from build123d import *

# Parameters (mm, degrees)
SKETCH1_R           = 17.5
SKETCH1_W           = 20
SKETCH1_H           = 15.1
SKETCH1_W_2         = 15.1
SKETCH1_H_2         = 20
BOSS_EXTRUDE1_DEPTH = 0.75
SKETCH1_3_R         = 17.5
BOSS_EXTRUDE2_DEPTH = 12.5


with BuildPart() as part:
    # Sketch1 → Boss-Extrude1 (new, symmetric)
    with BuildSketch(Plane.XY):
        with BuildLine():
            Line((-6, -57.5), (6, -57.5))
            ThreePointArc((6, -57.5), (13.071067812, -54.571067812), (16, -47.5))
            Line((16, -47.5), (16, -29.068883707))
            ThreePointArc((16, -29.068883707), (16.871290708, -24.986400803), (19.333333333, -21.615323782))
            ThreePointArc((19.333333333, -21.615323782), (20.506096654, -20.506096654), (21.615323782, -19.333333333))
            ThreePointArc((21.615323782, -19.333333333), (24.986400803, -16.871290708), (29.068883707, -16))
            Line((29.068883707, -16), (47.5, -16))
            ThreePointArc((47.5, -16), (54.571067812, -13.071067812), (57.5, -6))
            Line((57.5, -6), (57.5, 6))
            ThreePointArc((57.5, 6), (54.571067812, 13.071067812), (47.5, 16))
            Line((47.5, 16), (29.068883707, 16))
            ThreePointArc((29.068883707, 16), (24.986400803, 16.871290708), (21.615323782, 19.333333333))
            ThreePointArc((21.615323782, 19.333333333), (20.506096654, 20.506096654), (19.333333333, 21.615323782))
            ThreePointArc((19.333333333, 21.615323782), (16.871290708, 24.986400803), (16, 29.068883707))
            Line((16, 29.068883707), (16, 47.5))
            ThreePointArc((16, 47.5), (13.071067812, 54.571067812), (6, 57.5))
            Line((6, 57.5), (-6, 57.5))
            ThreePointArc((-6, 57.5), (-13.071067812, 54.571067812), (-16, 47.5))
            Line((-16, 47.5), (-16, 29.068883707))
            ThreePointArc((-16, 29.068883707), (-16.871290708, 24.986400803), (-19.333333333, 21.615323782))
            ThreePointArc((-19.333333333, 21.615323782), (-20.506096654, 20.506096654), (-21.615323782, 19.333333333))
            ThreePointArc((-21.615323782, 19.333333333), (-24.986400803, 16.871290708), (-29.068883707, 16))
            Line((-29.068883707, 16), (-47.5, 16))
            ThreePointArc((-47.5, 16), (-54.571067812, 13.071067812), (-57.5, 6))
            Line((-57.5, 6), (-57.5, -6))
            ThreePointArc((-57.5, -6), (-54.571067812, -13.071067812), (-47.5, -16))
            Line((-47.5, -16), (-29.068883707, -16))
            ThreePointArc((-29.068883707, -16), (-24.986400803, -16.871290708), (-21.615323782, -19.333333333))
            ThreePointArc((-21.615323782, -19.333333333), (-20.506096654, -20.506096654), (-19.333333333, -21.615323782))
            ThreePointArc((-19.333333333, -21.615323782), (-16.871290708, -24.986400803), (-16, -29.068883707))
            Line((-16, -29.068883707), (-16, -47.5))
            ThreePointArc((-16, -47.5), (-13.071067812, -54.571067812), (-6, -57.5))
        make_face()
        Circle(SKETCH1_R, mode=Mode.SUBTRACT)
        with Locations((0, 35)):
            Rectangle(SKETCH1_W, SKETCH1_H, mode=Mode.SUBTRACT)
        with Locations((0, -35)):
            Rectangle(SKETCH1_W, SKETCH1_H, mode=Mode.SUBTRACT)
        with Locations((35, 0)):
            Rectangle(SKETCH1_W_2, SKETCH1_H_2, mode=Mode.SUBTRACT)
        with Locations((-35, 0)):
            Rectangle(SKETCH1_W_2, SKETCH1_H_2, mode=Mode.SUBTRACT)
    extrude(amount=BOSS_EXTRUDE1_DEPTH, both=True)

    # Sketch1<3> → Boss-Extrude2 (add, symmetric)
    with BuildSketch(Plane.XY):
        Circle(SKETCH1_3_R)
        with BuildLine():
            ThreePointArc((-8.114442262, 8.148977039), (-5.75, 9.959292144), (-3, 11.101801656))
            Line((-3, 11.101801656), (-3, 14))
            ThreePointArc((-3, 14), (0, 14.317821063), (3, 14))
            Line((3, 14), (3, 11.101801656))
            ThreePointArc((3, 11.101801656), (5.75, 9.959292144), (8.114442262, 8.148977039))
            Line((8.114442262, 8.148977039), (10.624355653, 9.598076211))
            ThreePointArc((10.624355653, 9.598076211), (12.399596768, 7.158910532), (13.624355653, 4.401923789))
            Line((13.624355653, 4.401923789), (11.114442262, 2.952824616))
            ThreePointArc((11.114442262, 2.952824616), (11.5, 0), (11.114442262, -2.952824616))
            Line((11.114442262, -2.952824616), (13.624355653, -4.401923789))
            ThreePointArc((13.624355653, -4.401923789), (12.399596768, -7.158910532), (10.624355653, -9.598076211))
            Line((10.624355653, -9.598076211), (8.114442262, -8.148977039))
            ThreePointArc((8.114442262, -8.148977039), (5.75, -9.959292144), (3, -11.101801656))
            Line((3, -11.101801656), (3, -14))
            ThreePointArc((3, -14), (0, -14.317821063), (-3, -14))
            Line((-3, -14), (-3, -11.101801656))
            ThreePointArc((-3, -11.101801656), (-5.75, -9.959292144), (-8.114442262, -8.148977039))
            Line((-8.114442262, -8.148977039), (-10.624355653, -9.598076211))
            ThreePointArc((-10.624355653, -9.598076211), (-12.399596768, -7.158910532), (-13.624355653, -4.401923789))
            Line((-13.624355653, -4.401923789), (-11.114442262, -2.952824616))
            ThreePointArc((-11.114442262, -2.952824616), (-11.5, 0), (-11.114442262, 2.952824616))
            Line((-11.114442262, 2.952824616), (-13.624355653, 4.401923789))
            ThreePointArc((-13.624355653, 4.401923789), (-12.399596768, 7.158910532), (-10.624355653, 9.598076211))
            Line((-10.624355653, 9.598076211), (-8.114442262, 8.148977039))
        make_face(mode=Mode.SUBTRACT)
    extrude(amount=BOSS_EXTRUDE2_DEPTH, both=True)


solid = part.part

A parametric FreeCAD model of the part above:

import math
import FreeCAD as App
import Part
import Sketcher

V = App.Vector
Q = App.Units.Quantity

doc = App.newDocument("Part")
body = doc.addObject("PartDesign::Body", "Body")

# Sketch on XY plane
sketch1 = body.newObject("Sketcher::SketchObject", "Sketch")
sketch1.AttachmentSupport = (doc.getObject("XY_Plane"), [""])
sketch1.MapMode = "FlatFace"
sketch1.addGeometry(Part.LineSegment(V(-6, -57.5, 0), V(6, -57.5, 0)), False)
sketch1.addGeometry(Part.ArcOfCircle(Part.Circle(V(6, -47.5, 0), V(0, 0, 1), 10), math.radians(-90), math.radians(0)), False)
sketch1.addGeometry(Part.LineSegment(V(16, -47.5, 0), V(16, -29.068884, 0)), False)
sketch1.addGeometry(Part.ArcOfCircle(Part.Circle(V(26, -29.068884, 0), V(0, 0, 1), 10), math.radians(131.810315), math.radians(180)), False)
sketch1.addGeometry(Part.ArcOfCircle(Part.Circle(V(0, 0, 0), V(0, 0, 1), 29), math.radians(-48.189685), math.radians(-41.810315)), False)
sketch1.addGeometry(Part.ArcOfCircle(Part.Circle(V(29.068884, -26, 0), V(0, 0, 1), 10), math.radians(90), math.radians(138.189685)), False)
sketch1.addGeometry(Part.LineSegment(V(29.068884, -16, 0), V(47.5, -16, 0)), False)
sketch1.addGeometry(Part.ArcOfCircle(Part.Circle(V(47.5, -6, 0), V(0, 0, 1), 10), math.radians(-90), math.radians(0)), False)
sketch1.addGeometry(Part.LineSegment(V(57.5, -6, 0), V(57.5, 6, 0)), False)
sketch1.addGeometry(Part.ArcOfCircle(Part.Circle(V(47.5, 6, 0), V(0, 0, 1), 10), math.radians(0), math.radians(90)), False)
sketch1.addGeometry(Part.LineSegment(V(47.5, 16, 0), V(29.068884, 16, 0)), False)
sketch1.addGeometry(Part.ArcOfCircle(Part.Circle(V(29.068884, 26, 0), V(0, 0, 1), 10), math.radians(-138.189685), math.radians(-90)), False)
sketch1.addGeometry(Part.ArcOfCircle(Part.Circle(V(0, 0, 0), V(0, 0, 1), 29), math.radians(41.810315), math.radians(48.189685)), False)
sketch1.addGeometry(Part.ArcOfCircle(Part.Circle(V(26, 29.068884, 0), V(0, 0, 1), 10), math.radians(180), math.radians(228.189685)), False)
sketch1.addGeometry(Part.LineSegment(V(16, 29.068884, 0), V(16, 47.5, 0)), False)
sketch1.addGeometry(Part.ArcOfCircle(Part.Circle(V(6, 47.5, 0), V(0, 0, 1), 10), math.radians(0), math.radians(90)), False)
sketch1.addGeometry(Part.LineSegment(V(6, 57.5, 0), V(-6, 57.5, 0)), False)
sketch1.addGeometry(Part.ArcOfCircle(Part.Circle(V(-6, 47.5, 0), V(0, 0, 1), 10), math.radians(90), math.radians(180)), False)
sketch1.addGeometry(Part.LineSegment(V(-16, 47.5, 0), V(-16, 29.068884, 0)), False)
sketch1.addGeometry(Part.ArcOfCircle(Part.Circle(V(-26, 29.068884, 0), V(0, 0, 1), 10), math.radians(-48.189685), math.radians(0)), False)
sketch1.addGeometry(Part.ArcOfCircle(Part.Circle(V(0, 0, 0), V(0, 0, 1), 29), math.radians(131.810315), math.radians(138.189685)), False)
sketch1.addGeometry(Part.ArcOfCircle(Part.Circle(V(-29.068884, 26, 0), V(0, 0, 1), 10), math.radians(-90), math.radians(-41.810315)), False)
sketch1.addGeometry(Part.LineSegment(V(-29.068884, 16, 0), V(-47.5, 16, 0)), False)
sketch1.addGeometry(Part.ArcOfCircle(Part.Circle(V(-47.5, 6, 0), V(0, 0, 1), 10), math.radians(90), math.radians(180)), False)
sketch1.addGeometry(Part.LineSegment(V(-57.5, 6, 0), V(-57.5, -6, 0)), False)
sketch1.addGeometry(Part.ArcOfCircle(Part.Circle(V(-47.5, -6, 0), V(0, 0, 1), 10), math.radians(180), math.radians(270)), False)
sketch1.addGeometry(Part.LineSegment(V(-47.5, -16, 0), V(-29.068884, -16, 0)), False)
sketch1.addGeometry(Part.ArcOfCircle(Part.Circle(V(-29.068884, -26, 0), V(0, 0, 1), 10), math.radians(41.810315), math.radians(90)), False)
sketch1.addGeometry(Part.ArcOfCircle(Part.Circle(V(0, 0, 0), V(0, 0, 1), 29), math.radians(-138.189685), math.radians(-131.810315)), False)
sketch1.addGeometry(Part.ArcOfCircle(Part.Circle(V(-26, -29.068884, 0), V(0, 0, 1), 10), math.radians(0), math.radians(48.189685)), False)
sketch1.addGeometry(Part.LineSegment(V(-16, -29.068884, 0), V(-16, -47.5, 0)), False)
sketch1.addGeometry(Part.ArcOfCircle(Part.Circle(V(-6, -47.5, 0), V(0, 0, 1), 10), math.radians(180), math.radians(270)), False)
sketch1.addGeometry(Part.LineSegment(V(10, -42.55, 0), V(-10, -42.55, 0)), False)
sketch1.addGeometry(Part.LineSegment(V(-10, -42.55, 0), V(-10, -27.45, 0)), False)
sketch1.addGeometry(Part.LineSegment(V(-10, -27.45, 0), V(10, -27.45, 0)), False)
sketch1.addGeometry(Part.LineSegment(V(10, -27.45, 0), V(10, -42.55, 0)), False)
sketch1.addGeometry(Part.LineSegment(V(-27.45, -10, 0), V(-42.55, -10, 0)), False)
sketch1.addGeometry(Part.LineSegment(V(-42.55, -10, 0), V(-42.55, 10, 0)), False)
sketch1.addGeometry(Part.LineSegment(V(-42.55, 10, 0), V(-27.45, 10, 0)), False)
sketch1.addGeometry(Part.LineSegment(V(-27.45, 10, 0), V(-27.45, -10, 0)), False)
sketch1.addGeometry(Part.Circle(V(0, 0, 0), V(0, 0, 1), 17.5), False)
sketch1.addGeometry(Part.LineSegment(V(42.55, -10, 0), V(27.45, -10, 0)), False)
sketch1.addGeometry(Part.LineSegment(V(27.45, -10, 0), V(27.45, 10, 0)), False)
sketch1.addGeometry(Part.LineSegment(V(27.45, 10, 0), V(42.55, 10, 0)), False)
sketch1.addGeometry(Part.LineSegment(V(42.55, 10, 0), V(42.55, -10, 0)), False)
sketch1.addGeometry(Part.LineSegment(V(10, 27.45, 0), V(-10, 27.45, 0)), False)
sketch1.addGeometry(Part.LineSegment(V(-10, 27.45, 0), V(-10, 42.55, 0)), False)
sketch1.addGeometry(Part.LineSegment(V(-10, 42.55, 0), V(10, 42.55, 0)), False)
sketch1.addGeometry(Part.LineSegment(V(10, 42.55, 0), V(10, 27.45, 0)), False)
sketch1.addConstraint(Sketcher.Constraint("Tangent", 0, 2, 1, 1))
sketch1.addConstraint(Sketcher.Constraint("Tangent", 1, 2, 2, 1))
sketch1.addConstraint(Sketcher.Constraint("Tangent", 2, 2, 3, 2))
sketch1.addConstraint(Sketcher.Constraint("Tangent", 3, 1, 4, 1))
sketch1.addConstraint(Sketcher.Constraint("Tangent", 4, 2, 5, 2))
sketch1.addConstraint(Sketcher.Constraint("Tangent", 5, 1, 6, 1))
sketch1.addConstraint(Sketcher.Constraint("Tangent", 6, 2, 7, 1))
sketch1.addConstraint(Sketcher.Constraint("Tangent", 7, 2, 8, 1))
sketch1.addConstraint(Sketcher.Constraint("Tangent", 8, 2, 9, 1))
sketch1.addConstraint(Sketcher.Constraint("Tangent", 9, 2, 10, 1))
sketch1.addConstraint(Sketcher.Constraint("Tangent", 10, 2, 11, 2))
sketch1.addConstraint(Sketcher.Constraint("Tangent", 11, 1, 12, 1))
sketch1.addConstraint(Sketcher.Constraint("Tangent", 12, 2, 13, 2))
sketch1.addConstraint(Sketcher.Constraint("Tangent", 13, 1, 14, 1))
sketch1.addConstraint(Sketcher.Constraint("Tangent", 14, 2, 15, 1))
sketch1.addConstraint(Sketcher.Constraint("Tangent", 15, 2, 16, 1))
sketch1.addConstraint(Sketcher.Constraint("Tangent", 16, 2, 17, 1))
sketch1.addConstraint(Sketcher.Constraint("Tangent", 17, 2, 18, 1))
sketch1.addConstraint(Sketcher.Constraint("Tangent", 18, 2, 19, 2))
sketch1.addConstraint(Sketcher.Constraint("Tangent", 19, 1, 20, 1))
sketch1.addConstraint(Sketcher.Constraint("Tangent", 20, 2, 21, 2))
sketch1.addConstraint(Sketcher.Constraint("Tangent", 21, 1, 22, 1))
sketch1.addConstraint(Sketcher.Constraint("Tangent", 22, 2, 23, 1))
sketch1.addConstraint(Sketcher.Constraint("Tangent", 23, 2, 24, 1))
sketch1.addConstraint(Sketcher.Constraint("Tangent", 24, 2, 25, 1))
sketch1.addConstraint(Sketcher.Constraint("Tangent", 25, 2, 26, 1))
sketch1.addConstraint(Sketcher.Constraint("Tangent", 26, 2, 27, 2))
sketch1.addConstraint(Sketcher.Constraint("Tangent", 27, 1, 28, 1))
sketch1.addConstraint(Sketcher.Constraint("Tangent", 28, 2, 29, 2))
sketch1.addConstraint(Sketcher.Constraint("Tangent", 29, 1, 30, 1))
sketch1.addConstraint(Sketcher.Constraint("Tangent", 30, 2, 31, 1))
sketch1.addConstraint(Sketcher.Constraint("Tangent", 31, 2, 0, 1))
sketch1.addConstraint(Sketcher.Constraint("Coincident", 32, 2, 33, 1))
sketch1.addConstraint(Sketcher.Constraint("Coincident", 33, 2, 34, 1))
sketch1.addConstraint(Sketcher.Constraint("Coincident", 34, 2, 35, 1))
sketch1.addConstraint(Sketcher.Constraint("Coincident", 35, 2, 32, 1))
sketch1.addConstraint(Sketcher.Constraint("Coincident", 36, 2, 37, 1))
sketch1.addConstraint(Sketcher.Constraint("Coincident", 37, 2, 38, 1))
sketch1.addConstraint(Sketcher.Constraint("Coincident", 38, 2, 39, 1))
sketch1.addConstraint(Sketcher.Constraint("Coincident", 39, 2, 36, 1))
sketch1.addConstraint(Sketcher.Constraint("Coincident", 41, 2, 42, 1))
sketch1.addConstraint(Sketcher.Constraint("Coincident", 42, 2, 43, 1))
sketch1.addConstraint(Sketcher.Constraint("Coincident", 43, 2, 44, 1))
sketch1.addConstraint(Sketcher.Constraint("Coincident", 44, 2, 41, 1))
sketch1.addConstraint(Sketcher.Constraint("Coincident", 45, 2, 46, 1))
sketch1.addConstraint(Sketcher.Constraint("Coincident", 46, 2, 47, 1))
sketch1.addConstraint(Sketcher.Constraint("Coincident", 47, 2, 48, 1))
sketch1.addConstraint(Sketcher.Constraint("Coincident", 48, 2, 45, 1))
sketch1.addConstraint(Sketcher.Constraint("Horizontal", 0))
sketch1.addConstraint(Sketcher.Constraint("Vertical", 2))
sketch1.addConstraint(Sketcher.Constraint("Horizontal", 6))
sketch1.addConstraint(Sketcher.Constraint("Vertical", 8))
sketch1.addConstraint(Sketcher.Constraint("Horizontal", 10))
sketch1.addConstraint(Sketcher.Constraint("Vertical", 14))
sketch1.addConstraint(Sketcher.Constraint("Horizontal", 16))
sketch1.addConstraint(Sketcher.Constraint("Vertical", 18))
sketch1.addConstraint(Sketcher.Constraint("Horizontal", 22))
sketch1.addConstraint(Sketcher.Constraint("Vertical", 24))
sketch1.addConstraint(Sketcher.Constraint("Horizontal", 26))
sketch1.addConstraint(Sketcher.Constraint("Vertical", 30))
sketch1.addConstraint(Sketcher.Constraint("Horizontal", 32))
sketch1.addConstraint(Sketcher.Constraint("Vertical", 33))
sketch1.addConstraint(Sketcher.Constraint("Horizontal", 34))
sketch1.addConstraint(Sketcher.Constraint("Vertical", 35))
sketch1.addConstraint(Sketcher.Constraint("Horizontal", 36))
sketch1.addConstraint(Sketcher.Constraint("Vertical", 37))
sketch1.addConstraint(Sketcher.Constraint("Horizontal", 38))
sketch1.addConstraint(Sketcher.Constraint("Vertical", 39))
sketch1.addConstraint(Sketcher.Constraint("Horizontal", 41))
sketch1.addConstraint(Sketcher.Constraint("Vertical", 42))
sketch1.addConstraint(Sketcher.Constraint("Horizontal", 43))
sketch1.addConstraint(Sketcher.Constraint("Vertical", 44))
sketch1.addConstraint(Sketcher.Constraint("Horizontal", 45))
sketch1.addConstraint(Sketcher.Constraint("Vertical", 46))
sketch1.addConstraint(Sketcher.Constraint("Horizontal", 47))
sketch1.addConstraint(Sketcher.Constraint("Vertical", 48))
sketch1.addConstraint(Sketcher.Constraint("Coincident", 4, 3, -1, 1))
sketch1.addConstraint(Sketcher.Constraint("Coincident", 12, 3, -1, 1))
sketch1.addConstraint(Sketcher.Constraint("Coincident", 20, 3, -1, 1))
sketch1.addConstraint(Sketcher.Constraint("Coincident", 28, 3, -1, 1))
sketch1.addConstraint(Sketcher.Constraint("Coincident", 40, 3, -1, 1))
sketch1.addConstraint(Sketcher.Constraint("Equal", 1, 3))
sketch1.addConstraint(Sketcher.Constraint("Equal", 3, 5))
sketch1.addConstraint(Sketcher.Constraint("Equal", 5, 7))
sketch1.addConstraint(Sketcher.Constraint("Equal", 7, 9))
sketch1.addConstraint(Sketcher.Constraint("Equal", 9, 11))
sketch1.addConstraint(Sketcher.Constraint("Equal", 4, 12))
sketch1.addConstraint(Sketcher.Constraint("Equal", 11, 13))
sketch1.addConstraint(Sketcher.Constraint("Equal", 13, 15))
sketch1.addConstraint(Sketcher.Constraint("Equal", 15, 17))
sketch1.addConstraint(Sketcher.Constraint("Equal", 17, 19))
sketch1.addConstraint(Sketcher.Constraint("Equal", 12, 20))
sketch1.addConstraint(Sketcher.Constraint("Equal", 19, 21))
sketch1.addConstraint(Sketcher.Constraint("Equal", 21, 23))
sketch1.addConstraint(Sketcher.Constraint("Equal", 23, 25))
sketch1.addConstraint(Sketcher.Constraint("Equal", 25, 27))
sketch1.addConstraint(Sketcher.Constraint("Equal", 20, 28))
sketch1.addConstraint(Sketcher.Constraint("Equal", 27, 29))
sketch1.addConstraint(Sketcher.Constraint("Equal", 29, 31))
sketch1.addConstraint(Sketcher.Constraint("Symmetric", 1, 3, 17, 3, -1, 1))
sketch1.addConstraint(Sketcher.Constraint("Symmetric", 7, 3, 23, 3, -1, 1))
sketch1.addConstraint(Sketcher.Constraint("Symmetric", 38, 2, 41, 2, -1, 1))
sketch1.addConstraint(Sketcher.Constraint("Symmetric", 36, 2, 43, 2, -1, 1))
sketch1.addConstraint(Sketcher.Constraint("Symmetric", 34, 2, 45, 2, -1, 1))
sketch1.addConstraint(Sketcher.Constraint("Symmetric", 32, 2, 47, 2, -1, 1))
sketch1.addConstraint(Sketcher.Constraint("Horizontal", 13, 3, 19, 3))
sketch1.addConstraint(Sketcher.Constraint("Horizontal", 11, 3, 21, 3))
sketch1.addConstraint(Sketcher.Constraint("Horizontal", 7, 3, 25, 3))
sketch1.addConstraint(Sketcher.Constraint("Horizontal", 3, 3, 29, 3))
sketch1.addConstraint(Sketcher.Constraint("Horizontal", 39, 2, 41, 2))
sketch1.addConstraint(Sketcher.Constraint("Vertical", 33, 2, 45, 2))
sketch1.addConstraint(Sketcher.Constraint("Equal", 26, 2))
sketch1.addConstraint(Sketcher.Constraint("Equal", 16, 8))
sketch1.addConstraint(Sketcher.Constraint("Equal", 43, 33))
sketch1.addConstraint(Sketcher.Constraint("Equal", 47, 37))
sketch1.addConstraint(Sketcher.Constraint("Diameter", 40, 35.0))
sketch1.addConstraint(Sketcher.Constraint("Radius", 1, 10.0))
sketch1.addConstraint(Sketcher.Constraint("Radius", 4, 29.0))
sketch1.addConstraint(Sketcher.Constraint("DistanceX", 0, 1, 0, 2, 12.0))
sketch1.addConstraint(Sketcher.Constraint("DistanceX", 32, 2, 32, 1, 20.0))
sketch1.addConstraint(Sketcher.Constraint("DistanceX", 36, 2, 36, 1, 15.1))
sketch1.addConstraint(Sketcher.Constraint("DistanceY", 1, 3, -1, 1, 47.5))
sketch1.addConstraint(Sketcher.Constraint("DistanceY", 32, 2, -1, 1, 42.55))
sketch1.addConstraint(Sketcher.Constraint("DistanceX", 36, 2, -1, 1, 42.55))
pad1 = body.newObject("PartDesign::Pad", "Pad")
pad1.Profile = sketch1
pad1.Length = 1.5
pad1.Midplane = True

# Sketch on XY plane
sketch2 = body.newObject("Sketcher::SketchObject", "Sketch001")
sketch2.AttachmentSupport = (doc.getObject("XY_Plane"), [""])
sketch2.MapMode = "FlatFace"
sketch2.addGeometry(Part.Circle(V(0, 0, 0), V(0, 0, 1), 17.5), False)
sketch2.addGeometry(Part.LineSegment(V(-10.624356, 9.598076, 0), V(-8.114442, 8.148977, 0)), False)
sketch2.addGeometry(Part.ArcOfCircle(Part.Circle(V(0, 0, 0), V(0, 0, 1), 11.5), math.radians(105.121665), math.radians(134.878335)), False)
sketch2.addGeometry(Part.LineSegment(V(-3, 11.101802, 0), V(-3, 14, 0)), False)
sketch2.addGeometry(Part.ArcOfCircle(Part.Circle(V(0, 0, 0), V(0, 0, 1), 14.317821), math.radians(77.905243), math.radians(102.094757)), False)
sketch2.addGeometry(Part.LineSegment(V(3, 14, 0), V(3, 11.101802, 0)), False)
sketch2.addGeometry(Part.ArcOfCircle(Part.Circle(V(0, 0, 0), V(0, 0, 1), 11.5), math.radians(45.121665), math.radians(74.878335)), False)
sketch2.addGeometry(Part.LineSegment(V(8.114442, 8.148977, 0), V(10.624356, 9.598076, 0)), False)
sketch2.addGeometry(Part.ArcOfCircle(Part.Circle(V(0, 0, 0), V(0, 0, 1), 14.317821), math.radians(17.905243), math.radians(42.094757)), False)
sketch2.addGeometry(Part.LineSegment(V(13.624356, 4.401924, 0), V(11.114442, 2.952825, 0)), False)
sketch2.addGeometry(Part.ArcOfCircle(Part.Circle(V(0, 0, 0), V(0, 0, 1), 11.5), math.radians(-14.878335), math.radians(14.878335)), False)
sketch2.addGeometry(Part.LineSegment(V(11.114442, -2.952825, 0), V(13.624356, -4.401924, 0)), False)
sketch2.addGeometry(Part.ArcOfCircle(Part.Circle(V(0, 0, 0), V(0, 0, 1), 14.317821), math.radians(-42.094757), math.radians(-17.905243)), False)
sketch2.addGeometry(Part.LineSegment(V(10.624356, -9.598076, 0), V(8.114442, -8.148977, 0)), False)
sketch2.addGeometry(Part.ArcOfCircle(Part.Circle(V(0, 0, 0), V(0, 0, 1), 11.5), math.radians(-74.878335), math.radians(-45.121665)), False)
sketch2.addGeometry(Part.LineSegment(V(3, -11.101802, 0), V(3, -14, 0)), False)
sketch2.addGeometry(Part.ArcOfCircle(Part.Circle(V(0, 0, 0), V(0, 0, 1), 14.317821), math.radians(-102.094757), math.radians(-77.905243)), False)
sketch2.addGeometry(Part.LineSegment(V(-3, -14, 0), V(-3, -11.101802, 0)), False)
sketch2.addGeometry(Part.ArcOfCircle(Part.Circle(V(0, 0, 0), V(0, 0, 1), 11.5), math.radians(-134.878335), math.radians(-105.121665)), False)
sketch2.addGeometry(Part.LineSegment(V(-8.114442, -8.148977, 0), V(-10.624356, -9.598076, 0)), False)
sketch2.addGeometry(Part.ArcOfCircle(Part.Circle(V(0, 0, 0), V(0, 0, 1), 14.317821), math.radians(-162.094757), math.radians(-137.905243)), False)
sketch2.addGeometry(Part.LineSegment(V(-13.624356, -4.401924, 0), V(-11.114442, -2.952825, 0)), False)
sketch2.addGeometry(Part.ArcOfCircle(Part.Circle(V(0, 0, 0), V(0, 0, 1), 11.5), math.radians(165.121665), math.radians(194.878335)), False)
sketch2.addGeometry(Part.LineSegment(V(-11.114442, 2.952825, 0), V(-13.624356, 4.401924, 0)), False)
sketch2.addGeometry(Part.ArcOfCircle(Part.Circle(V(0, 0, 0), V(0, 0, 1), 14.317821), math.radians(137.905243), math.radians(162.094757)), False)
sketch2.addConstraint(Sketcher.Constraint("Coincident", 1, 2, 2, 2))
sketch2.addConstraint(Sketcher.Constraint("Coincident", 2, 1, 3, 1))
sketch2.addConstraint(Sketcher.Constraint("Coincident", 3, 2, 4, 2))
sketch2.addConstraint(Sketcher.Constraint("Coincident", 4, 1, 5, 1))
sketch2.addConstraint(Sketcher.Constraint("Coincident", 5, 2, 6, 2))
sketch2.addConstraint(Sketcher.Constraint("Coincident", 6, 1, 7, 1))
sketch2.addConstraint(Sketcher.Constraint("Coincident", 7, 2, 8, 2))
sketch2.addConstraint(Sketcher.Constraint("Coincident", 8, 1, 9, 1))
sketch2.addConstraint(Sketcher.Constraint("Coincident", 9, 2, 10, 2))
sketch2.addConstraint(Sketcher.Constraint("Coincident", 10, 1, 11, 1))
sketch2.addConstraint(Sketcher.Constraint("Coincident", 11, 2, 12, 2))
sketch2.addConstraint(Sketcher.Constraint("Coincident", 12, 1, 13, 1))
sketch2.addConstraint(Sketcher.Constraint("Coincident", 13, 2, 14, 2))
sketch2.addConstraint(Sketcher.Constraint("Coincident", 14, 1, 15, 1))
sketch2.addConstraint(Sketcher.Constraint("Coincident", 15, 2, 16, 2))
sketch2.addConstraint(Sketcher.Constraint("Coincident", 16, 1, 17, 1))
sketch2.addConstraint(Sketcher.Constraint("Coincident", 17, 2, 18, 2))
sketch2.addConstraint(Sketcher.Constraint("Coincident", 18, 1, 19, 1))
sketch2.addConstraint(Sketcher.Constraint("Coincident", 19, 2, 20, 2))
sketch2.addConstraint(Sketcher.Constraint("Coincident", 20, 1, 21, 1))
sketch2.addConstraint(Sketcher.Constraint("Coincident", 21, 2, 22, 2))
sketch2.addConstraint(Sketcher.Constraint("Coincident", 22, 1, 23, 1))
sketch2.addConstraint(Sketcher.Constraint("Coincident", 23, 2, 24, 2))
sketch2.addConstraint(Sketcher.Constraint("Coincident", 24, 1, 1, 1))
sketch2.addConstraint(Sketcher.Constraint("Vertical", 3))
sketch2.addConstraint(Sketcher.Constraint("Vertical", 5))
sketch2.addConstraint(Sketcher.Constraint("Vertical", 15))
sketch2.addConstraint(Sketcher.Constraint("Vertical", 17))
sketch2.addConstraint(Sketcher.Constraint("Coincident", 0, 3, -1, 1))
sketch2.addConstraint(Sketcher.Constraint("Coincident", 2, 3, -1, 1))
sketch2.addConstraint(Sketcher.Constraint("Coincident", 4, 3, -1, 1))
sketch2.addConstraint(Sketcher.Constraint("Coincident", 6, 3, -1, 1))
sketch2.addConstraint(Sketcher.Constraint("Coincident", 8, 3, -1, 1))
sketch2.addConstraint(Sketcher.Constraint("Coincident", 10, 3, -1, 1))
sketch2.addConstraint(Sketcher.Constraint("Coincident", 12, 3, -1, 1))
sketch2.addConstraint(Sketcher.Constraint("Coincident", 14, 3, -1, 1))
sketch2.addConstraint(Sketcher.Constraint("Coincident", 16, 3, -1, 1))
sketch2.addConstraint(Sketcher.Constraint("Coincident", 18, 3, -1, 1))
sketch2.addConstraint(Sketcher.Constraint("Coincident", 20, 3, -1, 1))
sketch2.addConstraint(Sketcher.Constraint("Coincident", 22, 3, -1, 1))
sketch2.addConstraint(Sketcher.Constraint("Coincident", 24, 3, -1, 1))
sketch2.addConstraint(Sketcher.Constraint("Equal", 2, 6))
sketch2.addConstraint(Sketcher.Constraint("Equal", 4, 8))
sketch2.addConstraint(Sketcher.Constraint("Equal", 6, 10))
sketch2.addConstraint(Sketcher.Constraint("Equal", 8, 12))
sketch2.addConstraint(Sketcher.Constraint("Equal", 10, 14))
sketch2.addConstraint(Sketcher.Constraint("Equal", 12, 16))
sketch2.addConstraint(Sketcher.Constraint("Equal", 14, 18))
sketch2.addConstraint(Sketcher.Constraint("Equal", 16, 20))
sketch2.addConstraint(Sketcher.Constraint("Equal", 18, 22))
sketch2.addConstraint(Sketcher.Constraint("Equal", 20, 24))
sketch2.addConstraint(Sketcher.Constraint("Parallel", 7, 9))
sketch2.addConstraint(Sketcher.Constraint("Parallel", 1, 11))
sketch2.addConstraint(Sketcher.Constraint("Parallel", 11, 13))
sketch2.addConstraint(Sketcher.Constraint("Parallel", 9, 19))
sketch2.addConstraint(Sketcher.Constraint("Parallel", 19, 21))
sketch2.addConstraint(Sketcher.Constraint("Parallel", 13, 23))
sketch2.addConstraint(Sketcher.Constraint("Horizontal", 3, 2, 4, 1))
sketch2.addConstraint(Sketcher.Constraint("Horizontal", 1, 2, 6, 1))
sketch2.addConstraint(Sketcher.Constraint("Horizontal", 15, 2, 16, 1))
sketch2.addConstraint(Sketcher.Constraint("Horizontal", 13, 2, 18, 1))
sketch2.addConstraint(Sketcher.Constraint("Horizontal", 12, 1, 19, 2))
sketch2.addConstraint(Sketcher.Constraint("Horizontal", 11, 2, 20, 1))
sketch2.addConstraint(Sketcher.Constraint("Horizontal", 9, 2, 22, 1))
sketch2.addConstraint(Sketcher.Constraint("Vertical", 9, 2, 10, 1))
sketch2.addConstraint(Sketcher.Constraint("Vertical", 7, 2, 12, 1))
sketch2.addConstraint(Sketcher.Constraint("Vertical", 5, 2, 14, 1))
sketch2.addConstraint(Sketcher.Constraint("Equal", 7, 9))
sketch2.addConstraint(Sketcher.Constraint("Diameter", 0, 35.0))
sketch2.addConstraint(Sketcher.Constraint("Radius", 2, 11.5))
sketch2.addConstraint(Sketcher.Constraint("Angle", 1, Q("-30 deg")))
sketch2.addConstraint(Sketcher.Constraint("DistanceX", 2, 1, -1, 1, 3.0))
sketch2.addConstraint(Sketcher.Constraint("DistanceY", -1, 1, 3, 2, 14.0))
sketch2.addConstraint(Sketcher.Constraint("DistanceX", 7, 2, 8, 1, 3.0))
pad2 = body.newObject("PartDesign::Pad", "Pad001")
pad2.Profile = sketch2
pad2.Length = 25
pad2.Midplane = True

doc.recompute()
